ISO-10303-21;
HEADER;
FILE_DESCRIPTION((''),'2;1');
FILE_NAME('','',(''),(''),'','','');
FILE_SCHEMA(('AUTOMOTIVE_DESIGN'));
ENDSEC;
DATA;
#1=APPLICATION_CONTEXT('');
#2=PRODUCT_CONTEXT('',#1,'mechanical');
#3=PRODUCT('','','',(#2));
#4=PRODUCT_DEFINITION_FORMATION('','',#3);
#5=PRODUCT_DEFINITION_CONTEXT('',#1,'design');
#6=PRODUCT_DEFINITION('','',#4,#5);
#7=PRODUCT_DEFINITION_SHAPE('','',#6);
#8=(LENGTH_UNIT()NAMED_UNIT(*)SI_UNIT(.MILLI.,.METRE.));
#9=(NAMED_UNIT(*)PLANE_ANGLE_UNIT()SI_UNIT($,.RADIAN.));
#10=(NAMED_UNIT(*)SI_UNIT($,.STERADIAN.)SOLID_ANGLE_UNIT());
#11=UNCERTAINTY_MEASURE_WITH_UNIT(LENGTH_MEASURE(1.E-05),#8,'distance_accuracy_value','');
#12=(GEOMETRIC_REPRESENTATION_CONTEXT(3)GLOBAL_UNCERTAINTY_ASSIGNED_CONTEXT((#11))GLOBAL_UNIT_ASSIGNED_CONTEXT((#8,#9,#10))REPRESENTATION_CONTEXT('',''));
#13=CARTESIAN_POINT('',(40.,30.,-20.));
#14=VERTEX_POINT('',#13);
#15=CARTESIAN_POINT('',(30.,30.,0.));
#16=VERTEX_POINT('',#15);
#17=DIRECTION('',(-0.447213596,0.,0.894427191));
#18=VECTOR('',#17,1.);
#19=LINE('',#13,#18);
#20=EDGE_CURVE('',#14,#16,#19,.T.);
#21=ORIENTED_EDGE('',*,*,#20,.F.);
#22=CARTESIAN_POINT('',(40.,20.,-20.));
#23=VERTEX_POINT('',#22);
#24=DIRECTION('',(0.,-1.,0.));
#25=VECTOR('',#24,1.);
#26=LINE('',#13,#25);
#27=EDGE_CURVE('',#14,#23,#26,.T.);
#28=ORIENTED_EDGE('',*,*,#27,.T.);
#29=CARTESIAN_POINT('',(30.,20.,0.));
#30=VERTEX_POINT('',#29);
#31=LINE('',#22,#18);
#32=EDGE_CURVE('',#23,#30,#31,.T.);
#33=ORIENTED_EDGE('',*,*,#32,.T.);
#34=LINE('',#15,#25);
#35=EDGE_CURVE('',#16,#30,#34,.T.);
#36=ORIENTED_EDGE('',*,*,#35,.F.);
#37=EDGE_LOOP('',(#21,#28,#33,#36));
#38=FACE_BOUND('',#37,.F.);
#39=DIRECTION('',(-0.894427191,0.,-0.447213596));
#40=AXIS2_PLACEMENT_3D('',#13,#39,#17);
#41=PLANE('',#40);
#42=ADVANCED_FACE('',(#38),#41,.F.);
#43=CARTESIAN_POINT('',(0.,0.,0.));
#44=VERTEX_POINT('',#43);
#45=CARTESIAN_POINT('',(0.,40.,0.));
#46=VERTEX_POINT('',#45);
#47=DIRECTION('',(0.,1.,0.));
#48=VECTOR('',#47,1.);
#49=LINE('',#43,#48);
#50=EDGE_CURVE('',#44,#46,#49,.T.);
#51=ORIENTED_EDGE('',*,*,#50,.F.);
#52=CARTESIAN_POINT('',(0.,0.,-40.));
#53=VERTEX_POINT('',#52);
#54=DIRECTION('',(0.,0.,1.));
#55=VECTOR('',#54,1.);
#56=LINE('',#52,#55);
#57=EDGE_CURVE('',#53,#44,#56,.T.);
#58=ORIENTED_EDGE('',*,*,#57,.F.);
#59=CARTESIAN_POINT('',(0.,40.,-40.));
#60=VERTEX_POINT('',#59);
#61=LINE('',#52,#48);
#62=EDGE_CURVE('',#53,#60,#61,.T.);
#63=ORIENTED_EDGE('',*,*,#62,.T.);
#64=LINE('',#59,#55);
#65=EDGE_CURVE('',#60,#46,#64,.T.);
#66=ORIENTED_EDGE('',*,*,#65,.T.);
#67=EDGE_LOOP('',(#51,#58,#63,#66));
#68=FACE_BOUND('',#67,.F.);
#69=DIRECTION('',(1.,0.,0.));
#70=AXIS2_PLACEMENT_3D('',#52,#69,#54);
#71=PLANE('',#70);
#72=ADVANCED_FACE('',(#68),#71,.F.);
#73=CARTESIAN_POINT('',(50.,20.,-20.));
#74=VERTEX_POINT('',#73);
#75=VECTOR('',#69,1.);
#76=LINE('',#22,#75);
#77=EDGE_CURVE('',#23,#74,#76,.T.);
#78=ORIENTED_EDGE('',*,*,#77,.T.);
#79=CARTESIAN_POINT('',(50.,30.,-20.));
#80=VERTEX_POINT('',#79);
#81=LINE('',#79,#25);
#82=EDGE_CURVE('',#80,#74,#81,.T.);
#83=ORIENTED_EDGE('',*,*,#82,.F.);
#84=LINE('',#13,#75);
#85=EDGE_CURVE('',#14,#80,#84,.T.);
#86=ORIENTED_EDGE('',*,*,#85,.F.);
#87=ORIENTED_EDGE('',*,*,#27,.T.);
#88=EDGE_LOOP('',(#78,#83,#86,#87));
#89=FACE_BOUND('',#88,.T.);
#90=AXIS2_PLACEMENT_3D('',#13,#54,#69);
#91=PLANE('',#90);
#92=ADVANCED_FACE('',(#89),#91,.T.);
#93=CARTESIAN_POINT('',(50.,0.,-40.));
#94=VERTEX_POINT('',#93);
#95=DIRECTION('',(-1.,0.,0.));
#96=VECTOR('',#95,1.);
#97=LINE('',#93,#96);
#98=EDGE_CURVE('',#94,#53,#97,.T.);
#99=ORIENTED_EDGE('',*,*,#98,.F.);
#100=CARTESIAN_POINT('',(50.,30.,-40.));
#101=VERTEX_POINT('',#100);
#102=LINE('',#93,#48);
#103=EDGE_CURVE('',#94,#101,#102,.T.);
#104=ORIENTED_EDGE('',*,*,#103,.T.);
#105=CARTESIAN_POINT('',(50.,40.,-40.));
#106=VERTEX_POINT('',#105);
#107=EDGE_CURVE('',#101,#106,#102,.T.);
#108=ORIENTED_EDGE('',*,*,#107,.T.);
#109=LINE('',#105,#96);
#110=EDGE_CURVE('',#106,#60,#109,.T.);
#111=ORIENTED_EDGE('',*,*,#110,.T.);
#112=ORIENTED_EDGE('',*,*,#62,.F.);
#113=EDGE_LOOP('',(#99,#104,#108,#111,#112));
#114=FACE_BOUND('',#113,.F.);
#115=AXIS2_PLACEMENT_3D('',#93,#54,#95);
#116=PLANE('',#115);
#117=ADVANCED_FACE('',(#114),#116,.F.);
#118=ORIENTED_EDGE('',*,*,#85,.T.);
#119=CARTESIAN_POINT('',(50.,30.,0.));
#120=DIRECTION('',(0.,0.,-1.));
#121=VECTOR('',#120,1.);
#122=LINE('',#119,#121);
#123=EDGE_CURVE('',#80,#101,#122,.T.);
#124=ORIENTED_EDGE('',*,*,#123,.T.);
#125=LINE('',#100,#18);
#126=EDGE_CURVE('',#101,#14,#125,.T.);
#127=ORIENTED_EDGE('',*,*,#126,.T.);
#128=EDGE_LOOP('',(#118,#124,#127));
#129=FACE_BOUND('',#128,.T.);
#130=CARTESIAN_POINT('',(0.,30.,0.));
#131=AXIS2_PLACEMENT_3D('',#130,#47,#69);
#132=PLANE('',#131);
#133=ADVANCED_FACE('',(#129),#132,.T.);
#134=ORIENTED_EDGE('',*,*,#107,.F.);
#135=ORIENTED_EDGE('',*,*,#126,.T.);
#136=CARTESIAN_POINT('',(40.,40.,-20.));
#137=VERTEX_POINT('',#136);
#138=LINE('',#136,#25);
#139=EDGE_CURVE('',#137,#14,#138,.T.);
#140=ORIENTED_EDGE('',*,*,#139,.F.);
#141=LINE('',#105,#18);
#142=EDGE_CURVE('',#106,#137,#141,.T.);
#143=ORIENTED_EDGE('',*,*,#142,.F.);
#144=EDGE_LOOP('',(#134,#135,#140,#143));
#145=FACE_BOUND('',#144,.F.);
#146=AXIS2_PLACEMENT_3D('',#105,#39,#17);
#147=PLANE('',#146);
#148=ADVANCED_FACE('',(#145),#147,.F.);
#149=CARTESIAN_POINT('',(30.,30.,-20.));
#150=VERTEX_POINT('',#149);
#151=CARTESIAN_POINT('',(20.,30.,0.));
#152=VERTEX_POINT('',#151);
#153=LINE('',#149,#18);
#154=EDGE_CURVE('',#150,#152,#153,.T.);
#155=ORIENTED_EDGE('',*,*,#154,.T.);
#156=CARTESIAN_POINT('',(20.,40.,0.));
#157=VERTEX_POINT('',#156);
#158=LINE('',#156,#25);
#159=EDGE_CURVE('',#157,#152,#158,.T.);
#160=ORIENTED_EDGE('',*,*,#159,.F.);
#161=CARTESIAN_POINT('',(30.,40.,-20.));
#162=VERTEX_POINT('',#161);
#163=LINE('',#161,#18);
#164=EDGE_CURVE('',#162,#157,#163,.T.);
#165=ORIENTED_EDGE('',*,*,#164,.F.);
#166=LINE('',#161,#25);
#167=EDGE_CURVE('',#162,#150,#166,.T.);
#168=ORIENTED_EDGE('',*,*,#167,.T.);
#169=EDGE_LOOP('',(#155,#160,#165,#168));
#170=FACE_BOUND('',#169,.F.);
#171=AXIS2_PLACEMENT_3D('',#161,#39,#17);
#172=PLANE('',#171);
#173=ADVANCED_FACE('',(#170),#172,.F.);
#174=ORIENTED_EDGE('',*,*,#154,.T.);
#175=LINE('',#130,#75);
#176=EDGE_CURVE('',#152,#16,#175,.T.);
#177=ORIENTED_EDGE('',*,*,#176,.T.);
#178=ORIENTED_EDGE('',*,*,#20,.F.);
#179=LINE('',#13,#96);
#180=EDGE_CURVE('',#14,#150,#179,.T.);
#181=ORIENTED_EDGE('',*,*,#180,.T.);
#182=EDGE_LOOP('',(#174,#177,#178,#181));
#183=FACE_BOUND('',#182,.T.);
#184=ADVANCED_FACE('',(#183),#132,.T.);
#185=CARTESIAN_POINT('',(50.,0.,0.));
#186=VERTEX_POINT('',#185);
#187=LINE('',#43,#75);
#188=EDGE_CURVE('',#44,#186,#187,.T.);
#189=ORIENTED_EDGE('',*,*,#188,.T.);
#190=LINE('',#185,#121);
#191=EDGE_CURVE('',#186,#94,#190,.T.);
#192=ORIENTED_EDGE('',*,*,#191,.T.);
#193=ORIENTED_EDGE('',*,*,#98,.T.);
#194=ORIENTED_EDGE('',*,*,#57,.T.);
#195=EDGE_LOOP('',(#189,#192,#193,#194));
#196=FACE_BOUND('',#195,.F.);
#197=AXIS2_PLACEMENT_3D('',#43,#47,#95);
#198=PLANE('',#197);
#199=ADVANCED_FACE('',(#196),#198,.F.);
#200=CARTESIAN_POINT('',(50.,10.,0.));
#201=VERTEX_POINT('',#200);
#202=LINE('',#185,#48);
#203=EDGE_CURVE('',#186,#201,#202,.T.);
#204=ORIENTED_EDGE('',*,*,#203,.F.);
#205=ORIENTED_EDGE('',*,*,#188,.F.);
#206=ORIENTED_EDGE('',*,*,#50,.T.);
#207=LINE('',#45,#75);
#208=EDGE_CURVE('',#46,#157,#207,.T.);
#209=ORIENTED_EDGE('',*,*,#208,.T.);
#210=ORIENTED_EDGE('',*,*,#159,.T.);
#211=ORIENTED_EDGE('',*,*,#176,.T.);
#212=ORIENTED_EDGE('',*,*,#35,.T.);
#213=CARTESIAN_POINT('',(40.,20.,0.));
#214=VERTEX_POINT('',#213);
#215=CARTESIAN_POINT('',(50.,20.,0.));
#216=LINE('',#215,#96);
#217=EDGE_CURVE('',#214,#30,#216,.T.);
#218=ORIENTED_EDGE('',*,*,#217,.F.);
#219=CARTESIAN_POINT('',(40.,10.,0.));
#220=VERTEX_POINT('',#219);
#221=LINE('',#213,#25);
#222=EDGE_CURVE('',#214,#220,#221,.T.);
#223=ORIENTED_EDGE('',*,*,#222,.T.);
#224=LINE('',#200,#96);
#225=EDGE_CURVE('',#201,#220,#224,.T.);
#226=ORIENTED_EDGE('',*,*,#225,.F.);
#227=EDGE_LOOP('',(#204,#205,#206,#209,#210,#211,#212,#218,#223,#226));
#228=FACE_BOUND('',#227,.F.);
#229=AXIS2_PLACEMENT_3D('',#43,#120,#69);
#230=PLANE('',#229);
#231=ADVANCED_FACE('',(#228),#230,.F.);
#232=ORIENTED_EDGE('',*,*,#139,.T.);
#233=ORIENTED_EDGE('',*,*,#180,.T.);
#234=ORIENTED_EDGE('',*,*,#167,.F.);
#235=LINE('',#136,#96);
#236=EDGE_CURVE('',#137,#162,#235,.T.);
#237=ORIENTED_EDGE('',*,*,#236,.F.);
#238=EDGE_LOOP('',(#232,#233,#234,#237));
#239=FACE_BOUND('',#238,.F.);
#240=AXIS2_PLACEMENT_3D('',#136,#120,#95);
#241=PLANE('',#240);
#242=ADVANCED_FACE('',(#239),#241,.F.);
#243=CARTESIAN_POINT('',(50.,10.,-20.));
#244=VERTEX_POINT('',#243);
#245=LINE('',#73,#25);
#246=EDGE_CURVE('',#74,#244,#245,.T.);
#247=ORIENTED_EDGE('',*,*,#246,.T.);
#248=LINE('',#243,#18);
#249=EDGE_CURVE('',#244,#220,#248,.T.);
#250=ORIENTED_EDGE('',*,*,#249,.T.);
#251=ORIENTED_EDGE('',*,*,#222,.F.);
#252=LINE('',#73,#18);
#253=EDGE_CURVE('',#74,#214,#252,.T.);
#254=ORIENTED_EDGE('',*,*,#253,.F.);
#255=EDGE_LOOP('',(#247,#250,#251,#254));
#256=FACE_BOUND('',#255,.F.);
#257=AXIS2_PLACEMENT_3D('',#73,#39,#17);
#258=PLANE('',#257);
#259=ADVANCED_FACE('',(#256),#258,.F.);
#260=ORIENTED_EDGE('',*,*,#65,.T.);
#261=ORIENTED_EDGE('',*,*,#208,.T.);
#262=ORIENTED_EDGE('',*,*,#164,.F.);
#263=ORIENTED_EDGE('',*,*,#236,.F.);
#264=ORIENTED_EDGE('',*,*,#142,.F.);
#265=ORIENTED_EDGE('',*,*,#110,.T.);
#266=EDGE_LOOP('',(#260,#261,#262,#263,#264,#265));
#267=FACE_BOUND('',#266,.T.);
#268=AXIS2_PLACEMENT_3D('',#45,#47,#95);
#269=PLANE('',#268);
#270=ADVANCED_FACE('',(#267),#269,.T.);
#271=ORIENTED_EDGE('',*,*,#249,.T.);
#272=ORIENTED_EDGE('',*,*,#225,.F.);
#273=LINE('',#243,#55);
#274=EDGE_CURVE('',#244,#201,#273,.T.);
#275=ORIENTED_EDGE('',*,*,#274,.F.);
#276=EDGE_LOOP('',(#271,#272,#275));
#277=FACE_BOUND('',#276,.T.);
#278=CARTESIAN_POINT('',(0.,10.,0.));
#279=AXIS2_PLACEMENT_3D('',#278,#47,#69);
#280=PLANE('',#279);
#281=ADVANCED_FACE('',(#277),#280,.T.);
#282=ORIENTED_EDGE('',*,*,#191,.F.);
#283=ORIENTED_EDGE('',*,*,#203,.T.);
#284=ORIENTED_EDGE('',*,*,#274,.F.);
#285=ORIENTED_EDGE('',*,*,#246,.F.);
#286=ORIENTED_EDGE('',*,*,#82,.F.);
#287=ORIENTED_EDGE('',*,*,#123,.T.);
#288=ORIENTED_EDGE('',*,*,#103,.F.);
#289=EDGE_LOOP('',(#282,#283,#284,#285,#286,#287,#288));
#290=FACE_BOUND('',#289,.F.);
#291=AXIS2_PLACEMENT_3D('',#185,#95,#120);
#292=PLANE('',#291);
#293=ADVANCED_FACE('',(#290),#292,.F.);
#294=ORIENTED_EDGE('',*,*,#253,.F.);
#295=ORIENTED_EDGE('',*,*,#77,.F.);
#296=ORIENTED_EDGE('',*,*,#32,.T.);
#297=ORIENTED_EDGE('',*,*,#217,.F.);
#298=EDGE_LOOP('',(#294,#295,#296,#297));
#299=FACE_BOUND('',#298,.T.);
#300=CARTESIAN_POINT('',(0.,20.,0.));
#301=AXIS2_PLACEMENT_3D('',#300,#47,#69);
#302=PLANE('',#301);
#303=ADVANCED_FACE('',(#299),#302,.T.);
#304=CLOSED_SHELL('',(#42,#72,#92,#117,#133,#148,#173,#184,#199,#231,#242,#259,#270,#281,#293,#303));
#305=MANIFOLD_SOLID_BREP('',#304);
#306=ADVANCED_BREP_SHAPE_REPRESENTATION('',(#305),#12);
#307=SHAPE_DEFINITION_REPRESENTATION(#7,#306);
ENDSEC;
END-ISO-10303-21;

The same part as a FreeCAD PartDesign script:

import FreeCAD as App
import Part
import Sketcher

V = App.Vector
Q = App.Units.Quantity


def add_polygon(sketch, points):
    """Adds a closed chain of lines whose ends are joined by coincident constraints."""
    first, n = sketch.GeometryCount, len(points)
    for a, b in zip(points, points[1:] + points[:1]):
        sketch.addGeometry(Part.LineSegment(App.Vector(*a, 0), App.Vector(*b, 0)), False)
    for i in range(n):
        sketch.addConstraint(Sketcher.Constraint("Coincident", first + i, 2, first + (i + 1) % n, 1))

doc = App.newDocument("Part")
body = doc.addObject("PartDesign::Body", "Body")

# Sketch on XZ plane
sketch1 = body.newObject("Sketcher::SketchObject", "Sketch")
sketch1.AttachmentSupport = (doc.getObject("XZ_Plane"), [""])
sketch1.MapMode = "FlatFace"
add_polygon(sketch1, [(0, -40), (0, 0), (50, 0), (50, -40)])  # lines 0-3
sketch1.addConstraint([
    Sketcher.Constraint("Vertical", 0),
    Sketcher.Constraint("Horizontal", 1),
    Sketcher.Constraint("Vertical", 2),
    Sketcher.Constraint("Horizontal", 3),
    Sketcher.Constraint("Coincident", 0, 2, -1, 1),
    Sketcher.Constraint("DistanceX", 1, 1, 1, 2, Q("50 mm")),
    Sketcher.Constraint("DistanceY", 0, 1, 0, 2, Q("40 mm")),
])
pad1 = body.newObject("PartDesign::Pad", "Pad")
pad1.Profile = sketch1
pad1.Length = 40
pad1.Reversed = True

# Sketch on XZ plane
sketch2 = body.newObject("Sketcher::SketchObject", "Sketch001")
sketch2.AttachmentSupport = (doc.getObject("XZ_Plane"), [""])
sketch2.MapMode = "FlatFace"
sketch2.AttachmentOffset = App.Placement(V(0, 0, -40), App.Rotation())
add_polygon(sketch2, [(20, 0), (50, 0), (50, -40), (40, -20), (30, -20)])  # lines 0-4
sketch2.addConstraint([
    Sketcher.Constraint("Horizontal", 0),
    Sketcher.Constraint("Vertical", 1),
    Sketcher.Constraint("Horizontal", 3),
    Sketcher.Constraint("PointOnObject", 0, 2, -1),
    Sketcher.Constraint("Parallel", 2, 4),
    Sketcher.Constraint("Equal", 2, 4),
    Sketcher.Constraint("DistanceX", 3, 2, 3, 1, Q("10 mm")),
    Sketcher.Constraint("DistanceY", 2, 2, -1, 1, Q("20 mm")),
    Sketcher.Constraint("DistanceX", -1, 1, 4, 2, Q("20 mm")),
    Sketcher.Constraint("DistanceX", 2, 2, 0, 2, Q("10 mm")),
])
pocket1 = body.newObject("PartDesign::Pocket", "Pocket")
pocket1.Profile = sketch2
pocket1.Length = 10
pocket1.Reversed = True

# Sketch on XZ plane
sketch3 = body.newObject("Sketcher::SketchObject", "Sketch002")
sketch3.AttachmentSupport = (doc.getObject("XZ_Plane"), [""])
sketch3.MapMode = "FlatFace"
sketch3.AttachmentOffset = App.Placement(V(0, 0, -30), App.Rotation())
add_polygon(sketch3, [(50, -20), (40, -20), (30, 0), (50, 0)])  # lines 0-3
sketch3.addConstraint([
    Sketcher.Constraint("Horizontal", 0),
    Sketcher.Constraint("Horizontal", 2),
    Sketcher.Constraint("Vertical", 3),
    Sketcher.Constraint("PointOnObject", 1, 2, -1),
    Sketcher.Constraint("Equal", 2, 3),
    Sketcher.Constraint("DistanceX", 0, 2, 0, 1, Q("10 mm")),
    Sketcher.Constraint("DistanceX", 1, 2, 0, 2, Q("10 mm")),
    Sketcher.Constraint("DistanceX", -1, 1, 0, 2, Q("40 mm")),
])
pocket2 = body.newObject("PartDesign::Pocket", "Pocket001")
pocket2.Profile = sketch3
pocket2.Length = 10
pocket2.Reversed = True

# Sketch on XZ plane
sketch4 = body.newObject("Sketcher::SketchObject", "Sketch003")
sketch4.AttachmentSupport = (doc.getObject("XZ_Plane"), [""])
sketch4.MapMode = "FlatFace"
sketch4.AttachmentOffset = App.Placement(V(0, 0, -20), App.Rotation())
add_polygon(sketch4, [(50, 0), (50, -20), (40, 0)])  # lines 0-2
sketch4.addConstraint([
    Sketcher.Constraint("Vertical", 0),
    Sketcher.Constraint("Horizontal", 2),
    Sketcher.Constraint("PointOnObject", 1, 2, -1),
    Sketcher.Constraint("DistanceX", 2, 1, 2, 2, Q("10 mm")),
    Sketcher.Constraint("DistanceY", 0, 2, 0, 1, Q("20 mm")),
    Sketcher.Constraint("DistanceX", -1, 1, 0, 2, Q("50 mm")),
])
pocket3 = body.newObject("PartDesign::Pocket", "Pocket002")
pocket3.Profile = sketch4
pocket3.Length = 10
pocket3.Reversed = True

doc.recompute()
